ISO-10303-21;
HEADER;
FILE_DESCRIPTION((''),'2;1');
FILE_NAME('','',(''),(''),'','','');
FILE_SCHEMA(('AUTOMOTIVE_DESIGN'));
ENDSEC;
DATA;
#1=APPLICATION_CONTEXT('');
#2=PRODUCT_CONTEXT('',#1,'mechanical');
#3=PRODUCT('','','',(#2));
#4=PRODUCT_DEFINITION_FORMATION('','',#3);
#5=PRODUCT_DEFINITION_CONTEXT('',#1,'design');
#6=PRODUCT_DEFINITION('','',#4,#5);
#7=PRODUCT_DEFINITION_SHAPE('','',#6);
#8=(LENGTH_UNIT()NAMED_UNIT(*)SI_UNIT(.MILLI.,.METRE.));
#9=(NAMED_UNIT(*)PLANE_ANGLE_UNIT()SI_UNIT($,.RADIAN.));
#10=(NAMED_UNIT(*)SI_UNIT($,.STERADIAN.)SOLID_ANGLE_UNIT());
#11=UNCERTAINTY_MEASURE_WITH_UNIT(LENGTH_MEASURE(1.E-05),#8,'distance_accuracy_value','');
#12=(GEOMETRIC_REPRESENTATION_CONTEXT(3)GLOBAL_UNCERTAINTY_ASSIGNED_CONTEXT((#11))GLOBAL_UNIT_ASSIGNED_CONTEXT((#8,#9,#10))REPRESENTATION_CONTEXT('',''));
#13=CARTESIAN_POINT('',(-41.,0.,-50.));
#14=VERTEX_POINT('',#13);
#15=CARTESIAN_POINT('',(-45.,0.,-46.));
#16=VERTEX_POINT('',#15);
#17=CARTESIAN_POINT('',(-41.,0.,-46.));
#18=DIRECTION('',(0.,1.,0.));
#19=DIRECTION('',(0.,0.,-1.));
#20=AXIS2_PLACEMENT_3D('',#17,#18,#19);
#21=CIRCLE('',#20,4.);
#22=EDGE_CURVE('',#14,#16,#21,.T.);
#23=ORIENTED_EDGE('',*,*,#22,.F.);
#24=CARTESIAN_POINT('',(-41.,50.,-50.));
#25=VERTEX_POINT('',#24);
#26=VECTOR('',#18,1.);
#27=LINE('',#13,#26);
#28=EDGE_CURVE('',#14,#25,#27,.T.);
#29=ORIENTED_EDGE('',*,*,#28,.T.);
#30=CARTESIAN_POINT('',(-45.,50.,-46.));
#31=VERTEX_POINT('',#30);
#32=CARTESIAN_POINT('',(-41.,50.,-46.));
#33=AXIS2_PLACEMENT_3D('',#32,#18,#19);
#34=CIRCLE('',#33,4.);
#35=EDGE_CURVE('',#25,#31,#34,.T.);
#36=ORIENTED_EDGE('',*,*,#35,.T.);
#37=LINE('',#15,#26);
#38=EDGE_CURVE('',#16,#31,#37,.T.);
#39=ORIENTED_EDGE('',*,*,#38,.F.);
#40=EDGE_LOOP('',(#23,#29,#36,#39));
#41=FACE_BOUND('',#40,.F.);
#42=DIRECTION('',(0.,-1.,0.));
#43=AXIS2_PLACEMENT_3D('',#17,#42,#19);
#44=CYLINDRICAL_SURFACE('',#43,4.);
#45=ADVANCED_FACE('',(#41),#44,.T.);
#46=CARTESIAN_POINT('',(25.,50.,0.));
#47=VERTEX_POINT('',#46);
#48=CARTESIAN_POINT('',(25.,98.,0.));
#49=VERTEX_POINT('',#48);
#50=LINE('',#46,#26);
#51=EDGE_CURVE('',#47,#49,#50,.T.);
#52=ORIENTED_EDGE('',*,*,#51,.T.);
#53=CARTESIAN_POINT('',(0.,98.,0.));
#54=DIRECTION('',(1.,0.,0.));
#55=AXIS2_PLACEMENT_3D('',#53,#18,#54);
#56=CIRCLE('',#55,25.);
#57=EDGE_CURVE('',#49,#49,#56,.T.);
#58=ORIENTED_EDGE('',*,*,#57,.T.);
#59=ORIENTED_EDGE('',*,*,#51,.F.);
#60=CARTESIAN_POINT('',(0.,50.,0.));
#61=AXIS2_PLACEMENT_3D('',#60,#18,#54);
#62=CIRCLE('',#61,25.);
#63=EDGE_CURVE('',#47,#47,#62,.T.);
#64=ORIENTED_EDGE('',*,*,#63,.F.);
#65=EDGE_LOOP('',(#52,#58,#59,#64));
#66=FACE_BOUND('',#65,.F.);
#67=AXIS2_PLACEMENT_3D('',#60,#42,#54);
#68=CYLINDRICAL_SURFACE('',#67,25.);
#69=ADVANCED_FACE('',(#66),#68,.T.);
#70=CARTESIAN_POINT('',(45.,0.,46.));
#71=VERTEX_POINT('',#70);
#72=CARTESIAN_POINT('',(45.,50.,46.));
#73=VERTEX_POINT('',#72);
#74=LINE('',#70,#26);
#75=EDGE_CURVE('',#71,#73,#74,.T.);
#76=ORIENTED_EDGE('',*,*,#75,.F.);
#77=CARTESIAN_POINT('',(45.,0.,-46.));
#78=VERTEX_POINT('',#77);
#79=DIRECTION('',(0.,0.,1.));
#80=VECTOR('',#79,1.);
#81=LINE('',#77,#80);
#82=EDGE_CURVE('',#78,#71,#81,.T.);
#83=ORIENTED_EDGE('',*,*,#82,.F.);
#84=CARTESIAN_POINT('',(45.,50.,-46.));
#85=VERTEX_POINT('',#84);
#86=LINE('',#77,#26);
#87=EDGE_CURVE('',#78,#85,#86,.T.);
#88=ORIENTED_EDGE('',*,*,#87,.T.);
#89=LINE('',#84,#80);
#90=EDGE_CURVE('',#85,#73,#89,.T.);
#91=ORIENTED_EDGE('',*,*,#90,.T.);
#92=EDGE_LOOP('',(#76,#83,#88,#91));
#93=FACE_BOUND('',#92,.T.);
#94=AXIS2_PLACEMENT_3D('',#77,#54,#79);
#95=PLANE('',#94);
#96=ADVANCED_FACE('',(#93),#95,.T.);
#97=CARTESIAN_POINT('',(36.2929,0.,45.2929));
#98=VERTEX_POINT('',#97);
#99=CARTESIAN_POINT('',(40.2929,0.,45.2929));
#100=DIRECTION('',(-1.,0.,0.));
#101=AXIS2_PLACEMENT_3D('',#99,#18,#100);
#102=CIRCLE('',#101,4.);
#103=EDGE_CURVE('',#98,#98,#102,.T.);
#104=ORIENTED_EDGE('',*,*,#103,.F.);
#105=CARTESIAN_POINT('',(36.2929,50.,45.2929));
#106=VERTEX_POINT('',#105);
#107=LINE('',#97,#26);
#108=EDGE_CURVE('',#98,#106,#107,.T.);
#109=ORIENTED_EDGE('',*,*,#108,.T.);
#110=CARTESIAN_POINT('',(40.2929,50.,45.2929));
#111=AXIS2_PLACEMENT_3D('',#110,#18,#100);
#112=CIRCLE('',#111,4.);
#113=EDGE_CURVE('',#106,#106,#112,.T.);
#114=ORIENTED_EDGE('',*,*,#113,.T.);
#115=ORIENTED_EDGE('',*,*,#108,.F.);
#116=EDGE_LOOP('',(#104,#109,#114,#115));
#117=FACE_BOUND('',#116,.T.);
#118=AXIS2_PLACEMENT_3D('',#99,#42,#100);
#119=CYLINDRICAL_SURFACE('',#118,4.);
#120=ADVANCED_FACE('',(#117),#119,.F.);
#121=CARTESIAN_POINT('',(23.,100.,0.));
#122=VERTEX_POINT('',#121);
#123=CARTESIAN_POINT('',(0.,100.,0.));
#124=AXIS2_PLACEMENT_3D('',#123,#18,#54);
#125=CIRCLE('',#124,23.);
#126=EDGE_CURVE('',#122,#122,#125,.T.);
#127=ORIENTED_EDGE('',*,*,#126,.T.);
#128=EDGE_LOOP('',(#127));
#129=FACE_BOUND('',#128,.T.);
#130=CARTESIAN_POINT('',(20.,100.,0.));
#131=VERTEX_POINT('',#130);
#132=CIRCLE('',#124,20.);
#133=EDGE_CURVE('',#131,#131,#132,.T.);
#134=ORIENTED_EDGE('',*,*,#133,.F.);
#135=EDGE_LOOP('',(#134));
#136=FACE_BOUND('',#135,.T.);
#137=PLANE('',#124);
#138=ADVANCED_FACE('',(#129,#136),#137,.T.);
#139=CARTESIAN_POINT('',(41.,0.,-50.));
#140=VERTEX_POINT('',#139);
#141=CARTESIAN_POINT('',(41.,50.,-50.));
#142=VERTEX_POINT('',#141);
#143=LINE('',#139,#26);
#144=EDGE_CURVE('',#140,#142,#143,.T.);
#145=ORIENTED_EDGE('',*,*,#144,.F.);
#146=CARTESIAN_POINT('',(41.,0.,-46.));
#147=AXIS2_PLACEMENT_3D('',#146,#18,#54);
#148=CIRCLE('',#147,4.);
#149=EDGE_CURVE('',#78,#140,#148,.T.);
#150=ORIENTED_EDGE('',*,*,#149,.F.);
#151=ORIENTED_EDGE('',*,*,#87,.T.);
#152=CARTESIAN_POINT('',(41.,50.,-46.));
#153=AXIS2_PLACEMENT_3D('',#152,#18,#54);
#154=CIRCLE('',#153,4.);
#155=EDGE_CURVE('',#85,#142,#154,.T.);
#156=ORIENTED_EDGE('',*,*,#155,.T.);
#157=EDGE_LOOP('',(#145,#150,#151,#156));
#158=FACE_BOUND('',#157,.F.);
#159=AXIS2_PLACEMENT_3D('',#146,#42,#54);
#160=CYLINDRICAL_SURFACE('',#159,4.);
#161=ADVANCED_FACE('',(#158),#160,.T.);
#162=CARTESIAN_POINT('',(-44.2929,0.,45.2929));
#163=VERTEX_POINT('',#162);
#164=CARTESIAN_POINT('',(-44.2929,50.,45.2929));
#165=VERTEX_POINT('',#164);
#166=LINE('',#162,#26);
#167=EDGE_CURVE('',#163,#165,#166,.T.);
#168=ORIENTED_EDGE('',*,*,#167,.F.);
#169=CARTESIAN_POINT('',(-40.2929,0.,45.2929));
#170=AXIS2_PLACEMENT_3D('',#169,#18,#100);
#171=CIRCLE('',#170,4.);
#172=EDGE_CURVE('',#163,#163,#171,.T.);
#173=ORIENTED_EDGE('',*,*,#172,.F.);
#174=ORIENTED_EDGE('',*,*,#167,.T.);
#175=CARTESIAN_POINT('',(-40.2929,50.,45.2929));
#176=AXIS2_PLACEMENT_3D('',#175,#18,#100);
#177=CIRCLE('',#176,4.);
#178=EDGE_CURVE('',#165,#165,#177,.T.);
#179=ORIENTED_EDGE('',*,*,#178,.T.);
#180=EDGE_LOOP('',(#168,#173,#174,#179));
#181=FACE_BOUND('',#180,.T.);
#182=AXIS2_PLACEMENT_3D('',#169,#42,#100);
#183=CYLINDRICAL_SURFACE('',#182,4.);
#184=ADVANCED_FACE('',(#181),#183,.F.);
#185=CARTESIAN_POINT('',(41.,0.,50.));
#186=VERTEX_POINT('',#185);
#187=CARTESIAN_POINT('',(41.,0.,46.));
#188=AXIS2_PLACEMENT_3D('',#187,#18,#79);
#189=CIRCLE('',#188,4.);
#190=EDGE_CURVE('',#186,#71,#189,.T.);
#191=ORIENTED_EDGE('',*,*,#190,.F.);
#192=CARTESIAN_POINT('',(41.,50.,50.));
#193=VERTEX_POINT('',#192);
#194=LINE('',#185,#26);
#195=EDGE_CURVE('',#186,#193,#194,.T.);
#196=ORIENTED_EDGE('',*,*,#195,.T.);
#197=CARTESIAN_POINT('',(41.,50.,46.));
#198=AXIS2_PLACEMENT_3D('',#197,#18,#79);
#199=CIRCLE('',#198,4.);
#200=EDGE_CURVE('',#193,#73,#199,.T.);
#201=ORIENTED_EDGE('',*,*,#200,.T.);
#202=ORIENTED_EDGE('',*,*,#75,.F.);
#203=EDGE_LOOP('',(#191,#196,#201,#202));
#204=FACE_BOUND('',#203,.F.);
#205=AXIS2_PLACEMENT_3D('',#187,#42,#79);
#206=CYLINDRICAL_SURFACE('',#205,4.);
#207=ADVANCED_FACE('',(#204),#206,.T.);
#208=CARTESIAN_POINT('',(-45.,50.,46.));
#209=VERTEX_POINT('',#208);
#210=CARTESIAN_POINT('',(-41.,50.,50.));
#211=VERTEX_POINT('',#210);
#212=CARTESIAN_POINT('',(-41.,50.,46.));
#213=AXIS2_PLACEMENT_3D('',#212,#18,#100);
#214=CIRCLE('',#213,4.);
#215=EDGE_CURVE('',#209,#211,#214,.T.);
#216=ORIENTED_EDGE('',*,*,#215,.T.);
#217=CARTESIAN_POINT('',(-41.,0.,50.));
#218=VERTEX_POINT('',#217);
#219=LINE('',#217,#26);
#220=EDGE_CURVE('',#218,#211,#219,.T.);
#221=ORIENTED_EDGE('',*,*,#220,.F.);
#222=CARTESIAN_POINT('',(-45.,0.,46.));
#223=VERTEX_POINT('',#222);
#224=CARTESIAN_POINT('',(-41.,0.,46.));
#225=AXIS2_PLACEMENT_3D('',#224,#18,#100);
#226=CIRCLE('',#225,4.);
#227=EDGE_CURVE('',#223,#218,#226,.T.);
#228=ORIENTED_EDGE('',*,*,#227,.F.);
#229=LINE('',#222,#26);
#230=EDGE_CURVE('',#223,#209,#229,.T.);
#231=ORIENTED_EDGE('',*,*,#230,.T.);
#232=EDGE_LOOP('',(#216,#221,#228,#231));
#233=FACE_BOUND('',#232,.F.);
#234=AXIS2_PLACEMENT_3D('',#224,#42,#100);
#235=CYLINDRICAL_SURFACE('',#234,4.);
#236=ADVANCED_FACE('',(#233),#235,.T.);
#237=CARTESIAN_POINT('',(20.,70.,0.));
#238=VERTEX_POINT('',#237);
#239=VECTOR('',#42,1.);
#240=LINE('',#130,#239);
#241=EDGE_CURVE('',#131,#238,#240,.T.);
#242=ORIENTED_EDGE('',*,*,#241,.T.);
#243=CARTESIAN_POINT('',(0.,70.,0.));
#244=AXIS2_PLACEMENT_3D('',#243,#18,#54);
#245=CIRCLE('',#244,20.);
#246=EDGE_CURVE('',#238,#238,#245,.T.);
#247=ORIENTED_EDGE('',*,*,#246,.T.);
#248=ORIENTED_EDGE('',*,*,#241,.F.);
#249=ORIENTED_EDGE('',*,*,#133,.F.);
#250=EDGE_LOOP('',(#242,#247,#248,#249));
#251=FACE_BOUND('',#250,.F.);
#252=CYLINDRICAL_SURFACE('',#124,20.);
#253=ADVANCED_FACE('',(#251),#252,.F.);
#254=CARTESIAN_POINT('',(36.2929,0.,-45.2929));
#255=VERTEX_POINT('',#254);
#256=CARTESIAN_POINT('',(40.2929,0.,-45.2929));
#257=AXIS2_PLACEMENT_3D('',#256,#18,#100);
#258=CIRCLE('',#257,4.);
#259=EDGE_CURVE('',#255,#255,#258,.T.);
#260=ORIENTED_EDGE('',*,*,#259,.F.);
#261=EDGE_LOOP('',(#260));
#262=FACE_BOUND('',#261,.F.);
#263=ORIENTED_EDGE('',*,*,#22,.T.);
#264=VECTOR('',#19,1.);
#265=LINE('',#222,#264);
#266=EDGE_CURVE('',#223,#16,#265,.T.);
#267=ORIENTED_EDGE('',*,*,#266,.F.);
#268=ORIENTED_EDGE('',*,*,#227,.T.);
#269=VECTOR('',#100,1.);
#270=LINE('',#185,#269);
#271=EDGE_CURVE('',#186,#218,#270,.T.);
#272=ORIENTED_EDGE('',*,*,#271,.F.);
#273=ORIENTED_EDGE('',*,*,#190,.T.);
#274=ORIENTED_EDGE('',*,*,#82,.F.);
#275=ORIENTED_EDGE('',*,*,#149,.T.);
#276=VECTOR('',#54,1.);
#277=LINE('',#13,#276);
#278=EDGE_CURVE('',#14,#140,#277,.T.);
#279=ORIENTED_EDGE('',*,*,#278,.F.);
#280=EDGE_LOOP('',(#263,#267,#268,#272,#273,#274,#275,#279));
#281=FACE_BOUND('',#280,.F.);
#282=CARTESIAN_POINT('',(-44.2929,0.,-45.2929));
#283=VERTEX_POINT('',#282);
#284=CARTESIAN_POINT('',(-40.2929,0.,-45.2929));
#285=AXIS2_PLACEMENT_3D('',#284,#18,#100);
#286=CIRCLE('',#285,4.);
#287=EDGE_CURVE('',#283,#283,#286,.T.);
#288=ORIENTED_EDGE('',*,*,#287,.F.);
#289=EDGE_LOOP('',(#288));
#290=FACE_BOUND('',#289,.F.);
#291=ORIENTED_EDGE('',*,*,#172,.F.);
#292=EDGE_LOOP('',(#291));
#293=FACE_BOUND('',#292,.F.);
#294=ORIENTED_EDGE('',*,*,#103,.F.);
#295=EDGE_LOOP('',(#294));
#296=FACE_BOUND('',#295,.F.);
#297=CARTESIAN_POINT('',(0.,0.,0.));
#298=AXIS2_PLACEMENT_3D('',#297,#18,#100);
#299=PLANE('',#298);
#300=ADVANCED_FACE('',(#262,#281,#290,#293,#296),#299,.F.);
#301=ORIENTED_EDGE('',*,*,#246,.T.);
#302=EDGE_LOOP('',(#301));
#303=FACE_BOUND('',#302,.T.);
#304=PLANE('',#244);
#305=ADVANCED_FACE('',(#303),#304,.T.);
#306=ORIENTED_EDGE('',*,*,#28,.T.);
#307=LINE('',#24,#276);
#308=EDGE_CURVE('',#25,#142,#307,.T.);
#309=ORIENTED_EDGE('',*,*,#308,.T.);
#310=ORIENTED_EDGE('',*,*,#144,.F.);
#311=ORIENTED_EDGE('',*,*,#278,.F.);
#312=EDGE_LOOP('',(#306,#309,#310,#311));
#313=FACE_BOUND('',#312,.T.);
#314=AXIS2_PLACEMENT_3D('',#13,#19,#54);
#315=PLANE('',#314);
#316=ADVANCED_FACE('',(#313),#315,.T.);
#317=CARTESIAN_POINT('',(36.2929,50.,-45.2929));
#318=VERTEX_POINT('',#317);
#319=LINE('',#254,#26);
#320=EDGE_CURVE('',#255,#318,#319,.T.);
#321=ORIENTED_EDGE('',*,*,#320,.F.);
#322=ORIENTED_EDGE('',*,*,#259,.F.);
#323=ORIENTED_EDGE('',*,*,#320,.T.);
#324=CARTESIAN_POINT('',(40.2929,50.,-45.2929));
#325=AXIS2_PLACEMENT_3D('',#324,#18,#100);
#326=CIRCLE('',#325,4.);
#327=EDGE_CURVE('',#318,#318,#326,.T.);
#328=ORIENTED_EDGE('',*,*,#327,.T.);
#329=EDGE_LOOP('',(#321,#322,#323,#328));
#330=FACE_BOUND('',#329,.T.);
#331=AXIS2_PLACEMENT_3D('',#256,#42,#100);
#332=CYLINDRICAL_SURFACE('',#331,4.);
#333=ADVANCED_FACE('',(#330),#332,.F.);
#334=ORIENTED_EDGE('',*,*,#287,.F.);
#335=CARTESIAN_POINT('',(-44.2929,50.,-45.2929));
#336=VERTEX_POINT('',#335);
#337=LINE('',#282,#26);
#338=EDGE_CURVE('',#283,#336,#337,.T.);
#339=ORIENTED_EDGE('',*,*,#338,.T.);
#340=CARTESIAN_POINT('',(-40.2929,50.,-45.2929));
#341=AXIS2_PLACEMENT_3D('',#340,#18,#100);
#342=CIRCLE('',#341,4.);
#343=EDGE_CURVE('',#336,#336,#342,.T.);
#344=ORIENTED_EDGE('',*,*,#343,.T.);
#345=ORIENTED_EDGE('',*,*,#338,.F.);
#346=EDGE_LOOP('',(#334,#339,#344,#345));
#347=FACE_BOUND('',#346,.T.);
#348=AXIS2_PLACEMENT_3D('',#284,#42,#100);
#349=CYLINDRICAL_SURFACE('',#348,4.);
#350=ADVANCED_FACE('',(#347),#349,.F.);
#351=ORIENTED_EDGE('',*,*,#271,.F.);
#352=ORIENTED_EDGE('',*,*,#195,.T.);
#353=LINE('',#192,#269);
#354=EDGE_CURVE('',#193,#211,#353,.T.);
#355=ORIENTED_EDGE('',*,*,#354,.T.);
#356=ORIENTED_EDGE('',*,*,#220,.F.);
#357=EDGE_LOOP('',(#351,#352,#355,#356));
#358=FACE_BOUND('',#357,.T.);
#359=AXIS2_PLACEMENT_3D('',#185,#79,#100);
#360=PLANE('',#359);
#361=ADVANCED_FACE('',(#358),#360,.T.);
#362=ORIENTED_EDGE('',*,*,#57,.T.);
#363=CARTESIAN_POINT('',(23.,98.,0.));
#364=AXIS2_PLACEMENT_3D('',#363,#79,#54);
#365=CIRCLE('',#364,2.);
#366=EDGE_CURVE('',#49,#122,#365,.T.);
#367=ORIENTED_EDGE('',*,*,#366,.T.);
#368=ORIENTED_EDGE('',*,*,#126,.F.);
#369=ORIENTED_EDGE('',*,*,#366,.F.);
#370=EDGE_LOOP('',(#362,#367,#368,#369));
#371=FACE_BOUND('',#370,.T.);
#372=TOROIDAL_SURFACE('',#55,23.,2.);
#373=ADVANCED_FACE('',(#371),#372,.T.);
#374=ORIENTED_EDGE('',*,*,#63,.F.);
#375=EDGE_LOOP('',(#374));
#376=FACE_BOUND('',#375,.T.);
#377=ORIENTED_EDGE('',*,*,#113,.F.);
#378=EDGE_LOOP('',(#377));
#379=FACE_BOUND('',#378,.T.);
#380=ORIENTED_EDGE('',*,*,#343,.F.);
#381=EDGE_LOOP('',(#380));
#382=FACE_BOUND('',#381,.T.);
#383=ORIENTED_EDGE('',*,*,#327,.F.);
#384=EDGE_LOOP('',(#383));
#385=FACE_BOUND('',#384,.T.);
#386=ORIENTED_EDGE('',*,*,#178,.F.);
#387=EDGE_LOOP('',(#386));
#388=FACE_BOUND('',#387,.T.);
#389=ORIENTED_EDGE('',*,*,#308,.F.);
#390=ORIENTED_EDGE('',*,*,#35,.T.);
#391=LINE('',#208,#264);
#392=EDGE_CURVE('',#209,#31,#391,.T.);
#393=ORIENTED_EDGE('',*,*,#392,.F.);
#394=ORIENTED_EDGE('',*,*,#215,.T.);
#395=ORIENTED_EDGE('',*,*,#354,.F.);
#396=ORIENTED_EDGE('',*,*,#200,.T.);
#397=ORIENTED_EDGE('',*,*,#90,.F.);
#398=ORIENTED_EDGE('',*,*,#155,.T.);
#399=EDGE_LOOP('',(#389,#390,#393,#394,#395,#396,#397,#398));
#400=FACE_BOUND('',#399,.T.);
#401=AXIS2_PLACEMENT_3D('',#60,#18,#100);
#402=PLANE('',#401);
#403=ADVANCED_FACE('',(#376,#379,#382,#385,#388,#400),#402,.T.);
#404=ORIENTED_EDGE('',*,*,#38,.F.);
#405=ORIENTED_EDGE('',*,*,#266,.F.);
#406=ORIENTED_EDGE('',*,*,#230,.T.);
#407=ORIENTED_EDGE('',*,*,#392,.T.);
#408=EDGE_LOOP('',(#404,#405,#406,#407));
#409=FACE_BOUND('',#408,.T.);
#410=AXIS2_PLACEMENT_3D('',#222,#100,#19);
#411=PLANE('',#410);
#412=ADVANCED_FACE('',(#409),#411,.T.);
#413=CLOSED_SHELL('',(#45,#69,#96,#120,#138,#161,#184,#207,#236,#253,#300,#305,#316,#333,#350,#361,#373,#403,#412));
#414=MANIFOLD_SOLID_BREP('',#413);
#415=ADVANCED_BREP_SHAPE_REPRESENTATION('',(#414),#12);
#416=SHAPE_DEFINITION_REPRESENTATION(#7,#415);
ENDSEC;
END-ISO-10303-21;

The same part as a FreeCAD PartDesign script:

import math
import FreeCAD as App
import Part
import Sketcher
from FreeCAD import Vector


def edges_at(feature, points):
    """Names of the edges that pass closest to the given points."""
    edges = feature.Shape.Edges
    near = lambda p: min(range(len(edges)), key=lambda i: edges[i].distToShape(Part.Vertex(*p))[0])
    return sorted({f"Edge{near(p) + 1}" for p in points})

doc = App.newDocument("Part")
body = doc.addObject("PartDesign::Body", "Body")

sketch1 = body.newObject("Sketcher::SketchObject", "Sketch")
sketch1.AttachmentSupport = (doc.getObject("XZ_Plane"), [""])
sketch1.MapMode = "FlatFace"
sketch1.addGeometry([
    Part.LineSegment(Vector(-41, 50, 0), Vector(41, 50, 0)),
    Part.ArcOfCircle(Part.Circle(Vector(41, 46, 0), Vector(0, 0, 1), 4), math.radians(0), math.radians(90)),
    Part.LineSegment(Vector(45, 46, 0), Vector(45, -46, 0)),
    Part.ArcOfCircle(Part.Circle(Vector(41, -46, 0), Vector(0, 0, 1), 4), math.radians(-90), math.radians(0)),
    Part.LineSegment(Vector(41, -50, 0), Vector(-41, -50, 0)),
    Part.ArcOfCircle(Part.Circle(Vector(-41, -46, 0), Vector(0, 0, 1), 4), math.radians(180), math.radians(270)),
    Part.LineSegment(Vector(-45, -46, 0), Vector(-45, 46, 0)),
    Part.ArcOfCircle(Part.Circle(Vector(-41, 46, 0), Vector(0, 0, 1), 4), math.radians(90), math.radians(180)),
    Part.Circle(Vector(40.3, -45.3, 0), Vector(0, 0, 1), 4),
    Part.Circle(Vector(-40.3, -45.3, 0), Vector(0, 0, 1), 4),
    Part.Circle(Vector(40.3, 45.3, 0), Vector(0, 0, 1), 4),
    Part.Circle(Vector(-40.3, 45.3, 0), Vector(0, 0, 1), 4),
], False)
sketch1.addConstraint([
    Sketcher.Constraint("Tangent", 0, 2, 1, 2),
    Sketcher.Constraint("Tangent", 1, 1, 2, 1),
    Sketcher.Constraint("Tangent", 2, 2, 3, 2),
    Sketcher.Constraint("Tangent", 3, 1, 4, 1),
    Sketcher.Constraint("Tangent", 4, 2, 5, 2),
    Sketcher.Constraint("Tangent", 5, 1, 6, 1),
    Sketcher.Constraint("Tangent", 6, 2, 7, 2),
    Sketcher.Constraint("Tangent", 7, 1, 0, 1),
    Sketcher.Constraint("Horizontal", 0),
    Sketcher.Constraint("Vertical", 2),
    Sketcher.Constraint("Horizontal", 4),
    Sketcher.Constraint("Vertical", 6),
    Sketcher.Constraint("Equal", 1, 3),
    Sketcher.Constraint("Equal", 3, 5),
    Sketcher.Constraint("Equal", 5, 7),
    Sketcher.Constraint("Equal", 7, 8),
    Sketcher.Constraint("Equal", 8, 9),
    Sketcher.Constraint("Equal", 9, 10),
    Sketcher.Constraint("Equal", 10, 11),
    Sketcher.Constraint("Symmetric", 1, 3, 5, 3, -1, 1),
    Sketcher.Constraint("Symmetric", 9, 3, 10, 3, -1, 1),
    Sketcher.Constraint("Symmetric", 8, 3, 11, 3, -1, 1),
    Sketcher.Constraint("Symmetric", 8, 3, 9, 3, -2),
    Sketcher.Constraint("Diameter", 8, 8.0),
    Sketcher.Constraint("DistanceX", 0, 1, 0, 2, 82.0),
    Sketcher.Constraint("DistanceY", 2, 2, 2, 1, 92.0),
    Sketcher.Constraint("DistanceX", -1, 1, 8, 3, 40.293),
    Sketcher.Constraint("DistanceY", 8, 3, -1, 1, 45.293),
])
pad1 = body.newObject("PartDesign::Pad", "Pad")
pad1.Profile = sketch1
pad1.Length = 50
pad1.Reversed = True

sketch2 = body.newObject("Sketcher::SketchObject", "Sketch001")
sketch2.AttachmentSupport = (doc.getObject("XZ_Plane"), [""])
sketch2.MapMode = "FlatFace"
sketch2.AttachmentOffset = App.Placement(Vector(0, 0, -50), App.Rotation())
sketch2.addGeometry(Part.Circle(Vector(0, 0, 0), Vector(0, 0, 1), 25), False)
sketch2.addConstraint([
    Sketcher.Constraint("Coincident", 0, 3, -1, 1),
    Sketcher.Constraint("Diameter", 0, 50.0),
])
pad2 = body.newObject("PartDesign::Pad", "Pad001")
pad2.Profile = sketch2
pad2.Length = 50
pad2.Reversed = True

sketch3 = body.newObject("Sketcher::SketchObject", "Sketch002")
sketch3.AttachmentSupport = (doc.getObject("XZ_Plane"), [""])
sketch3.MapMode = "FlatFace"
sketch3.AttachmentOffset = App.Placement(Vector(0, 0, -100), App.Rotation())
sketch3.addGeometry(Part.Circle(Vector(0, 0, 0), Vector(0, 0, 1), 20), False)
sketch3.addConstraint([
    Sketcher.Constraint("Coincident", 0, 3, -1, 1),
    Sketcher.Constraint("Diameter", 0, 40.0),
])
pocket1 = body.newObject("PartDesign::Pocket", "Pocket")
pocket1.Profile = sketch3
pocket1.Length = 30
pocket1.Reversed = True
doc.recompute()

fillet = body.newObject("PartDesign::Fillet", "Fillet")
fillet.Base = (pocket1, edges_at(pocket1, [(-25, 100, 0)]))
fillet.Radius = 2

doc.recompute()
